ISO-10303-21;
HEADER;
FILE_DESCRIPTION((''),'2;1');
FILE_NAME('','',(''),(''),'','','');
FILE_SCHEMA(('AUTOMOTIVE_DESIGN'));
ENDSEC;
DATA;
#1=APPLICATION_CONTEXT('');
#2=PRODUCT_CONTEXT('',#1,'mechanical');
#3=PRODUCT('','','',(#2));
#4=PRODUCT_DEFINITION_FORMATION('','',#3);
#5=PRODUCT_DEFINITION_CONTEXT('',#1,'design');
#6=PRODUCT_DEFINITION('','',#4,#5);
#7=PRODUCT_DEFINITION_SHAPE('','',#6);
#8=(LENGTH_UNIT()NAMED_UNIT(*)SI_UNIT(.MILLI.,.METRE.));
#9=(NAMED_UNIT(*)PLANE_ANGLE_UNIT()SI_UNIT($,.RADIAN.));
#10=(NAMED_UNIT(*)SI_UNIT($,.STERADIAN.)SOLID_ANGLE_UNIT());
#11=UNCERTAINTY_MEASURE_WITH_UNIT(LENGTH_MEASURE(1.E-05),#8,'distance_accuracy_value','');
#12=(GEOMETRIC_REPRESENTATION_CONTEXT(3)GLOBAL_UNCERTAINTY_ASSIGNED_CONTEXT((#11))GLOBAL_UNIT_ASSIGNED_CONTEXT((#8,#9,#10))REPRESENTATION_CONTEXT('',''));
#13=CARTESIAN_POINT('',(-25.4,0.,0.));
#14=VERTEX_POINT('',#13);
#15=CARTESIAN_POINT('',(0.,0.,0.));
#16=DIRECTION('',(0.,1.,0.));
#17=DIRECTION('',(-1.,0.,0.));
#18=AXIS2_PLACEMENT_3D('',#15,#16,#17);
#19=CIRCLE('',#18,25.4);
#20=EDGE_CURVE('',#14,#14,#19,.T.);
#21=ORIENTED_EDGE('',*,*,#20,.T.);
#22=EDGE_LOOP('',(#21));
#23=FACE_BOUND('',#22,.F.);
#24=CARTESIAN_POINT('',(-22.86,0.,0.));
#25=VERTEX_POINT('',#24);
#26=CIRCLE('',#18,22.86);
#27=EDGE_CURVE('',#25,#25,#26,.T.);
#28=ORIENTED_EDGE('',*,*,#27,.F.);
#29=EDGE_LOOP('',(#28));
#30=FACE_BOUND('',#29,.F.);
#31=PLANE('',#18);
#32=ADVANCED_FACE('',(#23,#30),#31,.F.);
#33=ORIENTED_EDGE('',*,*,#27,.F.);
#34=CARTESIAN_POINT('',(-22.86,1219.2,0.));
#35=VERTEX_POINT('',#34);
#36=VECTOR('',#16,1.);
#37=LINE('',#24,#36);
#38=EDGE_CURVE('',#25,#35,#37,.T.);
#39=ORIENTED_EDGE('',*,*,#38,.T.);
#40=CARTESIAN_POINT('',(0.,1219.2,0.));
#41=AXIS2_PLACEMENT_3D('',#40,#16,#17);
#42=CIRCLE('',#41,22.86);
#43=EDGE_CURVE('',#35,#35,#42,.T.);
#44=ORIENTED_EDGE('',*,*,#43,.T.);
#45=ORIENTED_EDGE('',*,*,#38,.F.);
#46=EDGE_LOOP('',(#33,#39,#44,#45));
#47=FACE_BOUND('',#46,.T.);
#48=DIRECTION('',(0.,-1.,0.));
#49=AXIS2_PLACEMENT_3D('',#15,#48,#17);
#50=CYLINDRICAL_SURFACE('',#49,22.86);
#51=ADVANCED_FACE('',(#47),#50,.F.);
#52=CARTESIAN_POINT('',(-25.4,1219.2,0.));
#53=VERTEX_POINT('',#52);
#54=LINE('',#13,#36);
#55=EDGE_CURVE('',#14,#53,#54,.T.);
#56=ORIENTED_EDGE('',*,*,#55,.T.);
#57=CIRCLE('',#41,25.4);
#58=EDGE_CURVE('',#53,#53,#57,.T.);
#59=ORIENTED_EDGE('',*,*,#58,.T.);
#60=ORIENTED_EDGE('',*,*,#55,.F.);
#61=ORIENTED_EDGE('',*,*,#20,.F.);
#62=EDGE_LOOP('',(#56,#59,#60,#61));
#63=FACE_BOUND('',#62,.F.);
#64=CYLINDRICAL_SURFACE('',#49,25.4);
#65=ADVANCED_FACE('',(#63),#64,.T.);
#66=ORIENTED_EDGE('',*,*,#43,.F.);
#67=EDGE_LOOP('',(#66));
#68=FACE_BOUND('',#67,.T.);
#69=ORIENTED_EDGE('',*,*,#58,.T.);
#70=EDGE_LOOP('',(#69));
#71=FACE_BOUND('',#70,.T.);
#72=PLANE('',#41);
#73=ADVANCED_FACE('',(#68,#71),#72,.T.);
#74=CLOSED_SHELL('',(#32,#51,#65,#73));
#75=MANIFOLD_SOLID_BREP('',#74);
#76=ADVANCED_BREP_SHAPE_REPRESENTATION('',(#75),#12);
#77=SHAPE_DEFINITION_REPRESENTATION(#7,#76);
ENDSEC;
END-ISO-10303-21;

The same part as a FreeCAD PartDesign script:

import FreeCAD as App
import Part
import Sketcher
Q = App.Units.Quantity

doc = App.newDocument("Part")
body = doc.addObject("PartDesign::Body", "Body")

# Sketch on XZ plane
sketch1 = body.newObject("Sketcher::SketchObject", "Sketch")
sketch1.AttachmentSupport = (doc.getObject("XZ_Plane"), [""])
sketch1.MapMode = "FlatFace"
sketch1.addGeometry([
    Part.Circle(App.Vector(0, 0, 0), App.Vector(0, 0, 1), 25.4),
    Part.Circle(App.Vector(0, 0, 0), App.Vector(0, 0, 1), 22.86),
], False)
sketch1.addConstraint([
    Sketcher.Constraint("Coincident", 0, 3, -1, 1),
    Sketcher.Constraint("Coincident", 1, 3, -1, 1),
    Sketcher.Constraint("Diameter", 0, Q("2 in")),
    Sketcher.Constraint("Diameter", 1, Q("1.8 in")),
])
pad1 = body.newObject("PartDesign::Pad", "Pad")
pad1.Profile = sketch1
pad1.Length = Q("48 in")
pad1.Reversed = True

doc.recompute()
